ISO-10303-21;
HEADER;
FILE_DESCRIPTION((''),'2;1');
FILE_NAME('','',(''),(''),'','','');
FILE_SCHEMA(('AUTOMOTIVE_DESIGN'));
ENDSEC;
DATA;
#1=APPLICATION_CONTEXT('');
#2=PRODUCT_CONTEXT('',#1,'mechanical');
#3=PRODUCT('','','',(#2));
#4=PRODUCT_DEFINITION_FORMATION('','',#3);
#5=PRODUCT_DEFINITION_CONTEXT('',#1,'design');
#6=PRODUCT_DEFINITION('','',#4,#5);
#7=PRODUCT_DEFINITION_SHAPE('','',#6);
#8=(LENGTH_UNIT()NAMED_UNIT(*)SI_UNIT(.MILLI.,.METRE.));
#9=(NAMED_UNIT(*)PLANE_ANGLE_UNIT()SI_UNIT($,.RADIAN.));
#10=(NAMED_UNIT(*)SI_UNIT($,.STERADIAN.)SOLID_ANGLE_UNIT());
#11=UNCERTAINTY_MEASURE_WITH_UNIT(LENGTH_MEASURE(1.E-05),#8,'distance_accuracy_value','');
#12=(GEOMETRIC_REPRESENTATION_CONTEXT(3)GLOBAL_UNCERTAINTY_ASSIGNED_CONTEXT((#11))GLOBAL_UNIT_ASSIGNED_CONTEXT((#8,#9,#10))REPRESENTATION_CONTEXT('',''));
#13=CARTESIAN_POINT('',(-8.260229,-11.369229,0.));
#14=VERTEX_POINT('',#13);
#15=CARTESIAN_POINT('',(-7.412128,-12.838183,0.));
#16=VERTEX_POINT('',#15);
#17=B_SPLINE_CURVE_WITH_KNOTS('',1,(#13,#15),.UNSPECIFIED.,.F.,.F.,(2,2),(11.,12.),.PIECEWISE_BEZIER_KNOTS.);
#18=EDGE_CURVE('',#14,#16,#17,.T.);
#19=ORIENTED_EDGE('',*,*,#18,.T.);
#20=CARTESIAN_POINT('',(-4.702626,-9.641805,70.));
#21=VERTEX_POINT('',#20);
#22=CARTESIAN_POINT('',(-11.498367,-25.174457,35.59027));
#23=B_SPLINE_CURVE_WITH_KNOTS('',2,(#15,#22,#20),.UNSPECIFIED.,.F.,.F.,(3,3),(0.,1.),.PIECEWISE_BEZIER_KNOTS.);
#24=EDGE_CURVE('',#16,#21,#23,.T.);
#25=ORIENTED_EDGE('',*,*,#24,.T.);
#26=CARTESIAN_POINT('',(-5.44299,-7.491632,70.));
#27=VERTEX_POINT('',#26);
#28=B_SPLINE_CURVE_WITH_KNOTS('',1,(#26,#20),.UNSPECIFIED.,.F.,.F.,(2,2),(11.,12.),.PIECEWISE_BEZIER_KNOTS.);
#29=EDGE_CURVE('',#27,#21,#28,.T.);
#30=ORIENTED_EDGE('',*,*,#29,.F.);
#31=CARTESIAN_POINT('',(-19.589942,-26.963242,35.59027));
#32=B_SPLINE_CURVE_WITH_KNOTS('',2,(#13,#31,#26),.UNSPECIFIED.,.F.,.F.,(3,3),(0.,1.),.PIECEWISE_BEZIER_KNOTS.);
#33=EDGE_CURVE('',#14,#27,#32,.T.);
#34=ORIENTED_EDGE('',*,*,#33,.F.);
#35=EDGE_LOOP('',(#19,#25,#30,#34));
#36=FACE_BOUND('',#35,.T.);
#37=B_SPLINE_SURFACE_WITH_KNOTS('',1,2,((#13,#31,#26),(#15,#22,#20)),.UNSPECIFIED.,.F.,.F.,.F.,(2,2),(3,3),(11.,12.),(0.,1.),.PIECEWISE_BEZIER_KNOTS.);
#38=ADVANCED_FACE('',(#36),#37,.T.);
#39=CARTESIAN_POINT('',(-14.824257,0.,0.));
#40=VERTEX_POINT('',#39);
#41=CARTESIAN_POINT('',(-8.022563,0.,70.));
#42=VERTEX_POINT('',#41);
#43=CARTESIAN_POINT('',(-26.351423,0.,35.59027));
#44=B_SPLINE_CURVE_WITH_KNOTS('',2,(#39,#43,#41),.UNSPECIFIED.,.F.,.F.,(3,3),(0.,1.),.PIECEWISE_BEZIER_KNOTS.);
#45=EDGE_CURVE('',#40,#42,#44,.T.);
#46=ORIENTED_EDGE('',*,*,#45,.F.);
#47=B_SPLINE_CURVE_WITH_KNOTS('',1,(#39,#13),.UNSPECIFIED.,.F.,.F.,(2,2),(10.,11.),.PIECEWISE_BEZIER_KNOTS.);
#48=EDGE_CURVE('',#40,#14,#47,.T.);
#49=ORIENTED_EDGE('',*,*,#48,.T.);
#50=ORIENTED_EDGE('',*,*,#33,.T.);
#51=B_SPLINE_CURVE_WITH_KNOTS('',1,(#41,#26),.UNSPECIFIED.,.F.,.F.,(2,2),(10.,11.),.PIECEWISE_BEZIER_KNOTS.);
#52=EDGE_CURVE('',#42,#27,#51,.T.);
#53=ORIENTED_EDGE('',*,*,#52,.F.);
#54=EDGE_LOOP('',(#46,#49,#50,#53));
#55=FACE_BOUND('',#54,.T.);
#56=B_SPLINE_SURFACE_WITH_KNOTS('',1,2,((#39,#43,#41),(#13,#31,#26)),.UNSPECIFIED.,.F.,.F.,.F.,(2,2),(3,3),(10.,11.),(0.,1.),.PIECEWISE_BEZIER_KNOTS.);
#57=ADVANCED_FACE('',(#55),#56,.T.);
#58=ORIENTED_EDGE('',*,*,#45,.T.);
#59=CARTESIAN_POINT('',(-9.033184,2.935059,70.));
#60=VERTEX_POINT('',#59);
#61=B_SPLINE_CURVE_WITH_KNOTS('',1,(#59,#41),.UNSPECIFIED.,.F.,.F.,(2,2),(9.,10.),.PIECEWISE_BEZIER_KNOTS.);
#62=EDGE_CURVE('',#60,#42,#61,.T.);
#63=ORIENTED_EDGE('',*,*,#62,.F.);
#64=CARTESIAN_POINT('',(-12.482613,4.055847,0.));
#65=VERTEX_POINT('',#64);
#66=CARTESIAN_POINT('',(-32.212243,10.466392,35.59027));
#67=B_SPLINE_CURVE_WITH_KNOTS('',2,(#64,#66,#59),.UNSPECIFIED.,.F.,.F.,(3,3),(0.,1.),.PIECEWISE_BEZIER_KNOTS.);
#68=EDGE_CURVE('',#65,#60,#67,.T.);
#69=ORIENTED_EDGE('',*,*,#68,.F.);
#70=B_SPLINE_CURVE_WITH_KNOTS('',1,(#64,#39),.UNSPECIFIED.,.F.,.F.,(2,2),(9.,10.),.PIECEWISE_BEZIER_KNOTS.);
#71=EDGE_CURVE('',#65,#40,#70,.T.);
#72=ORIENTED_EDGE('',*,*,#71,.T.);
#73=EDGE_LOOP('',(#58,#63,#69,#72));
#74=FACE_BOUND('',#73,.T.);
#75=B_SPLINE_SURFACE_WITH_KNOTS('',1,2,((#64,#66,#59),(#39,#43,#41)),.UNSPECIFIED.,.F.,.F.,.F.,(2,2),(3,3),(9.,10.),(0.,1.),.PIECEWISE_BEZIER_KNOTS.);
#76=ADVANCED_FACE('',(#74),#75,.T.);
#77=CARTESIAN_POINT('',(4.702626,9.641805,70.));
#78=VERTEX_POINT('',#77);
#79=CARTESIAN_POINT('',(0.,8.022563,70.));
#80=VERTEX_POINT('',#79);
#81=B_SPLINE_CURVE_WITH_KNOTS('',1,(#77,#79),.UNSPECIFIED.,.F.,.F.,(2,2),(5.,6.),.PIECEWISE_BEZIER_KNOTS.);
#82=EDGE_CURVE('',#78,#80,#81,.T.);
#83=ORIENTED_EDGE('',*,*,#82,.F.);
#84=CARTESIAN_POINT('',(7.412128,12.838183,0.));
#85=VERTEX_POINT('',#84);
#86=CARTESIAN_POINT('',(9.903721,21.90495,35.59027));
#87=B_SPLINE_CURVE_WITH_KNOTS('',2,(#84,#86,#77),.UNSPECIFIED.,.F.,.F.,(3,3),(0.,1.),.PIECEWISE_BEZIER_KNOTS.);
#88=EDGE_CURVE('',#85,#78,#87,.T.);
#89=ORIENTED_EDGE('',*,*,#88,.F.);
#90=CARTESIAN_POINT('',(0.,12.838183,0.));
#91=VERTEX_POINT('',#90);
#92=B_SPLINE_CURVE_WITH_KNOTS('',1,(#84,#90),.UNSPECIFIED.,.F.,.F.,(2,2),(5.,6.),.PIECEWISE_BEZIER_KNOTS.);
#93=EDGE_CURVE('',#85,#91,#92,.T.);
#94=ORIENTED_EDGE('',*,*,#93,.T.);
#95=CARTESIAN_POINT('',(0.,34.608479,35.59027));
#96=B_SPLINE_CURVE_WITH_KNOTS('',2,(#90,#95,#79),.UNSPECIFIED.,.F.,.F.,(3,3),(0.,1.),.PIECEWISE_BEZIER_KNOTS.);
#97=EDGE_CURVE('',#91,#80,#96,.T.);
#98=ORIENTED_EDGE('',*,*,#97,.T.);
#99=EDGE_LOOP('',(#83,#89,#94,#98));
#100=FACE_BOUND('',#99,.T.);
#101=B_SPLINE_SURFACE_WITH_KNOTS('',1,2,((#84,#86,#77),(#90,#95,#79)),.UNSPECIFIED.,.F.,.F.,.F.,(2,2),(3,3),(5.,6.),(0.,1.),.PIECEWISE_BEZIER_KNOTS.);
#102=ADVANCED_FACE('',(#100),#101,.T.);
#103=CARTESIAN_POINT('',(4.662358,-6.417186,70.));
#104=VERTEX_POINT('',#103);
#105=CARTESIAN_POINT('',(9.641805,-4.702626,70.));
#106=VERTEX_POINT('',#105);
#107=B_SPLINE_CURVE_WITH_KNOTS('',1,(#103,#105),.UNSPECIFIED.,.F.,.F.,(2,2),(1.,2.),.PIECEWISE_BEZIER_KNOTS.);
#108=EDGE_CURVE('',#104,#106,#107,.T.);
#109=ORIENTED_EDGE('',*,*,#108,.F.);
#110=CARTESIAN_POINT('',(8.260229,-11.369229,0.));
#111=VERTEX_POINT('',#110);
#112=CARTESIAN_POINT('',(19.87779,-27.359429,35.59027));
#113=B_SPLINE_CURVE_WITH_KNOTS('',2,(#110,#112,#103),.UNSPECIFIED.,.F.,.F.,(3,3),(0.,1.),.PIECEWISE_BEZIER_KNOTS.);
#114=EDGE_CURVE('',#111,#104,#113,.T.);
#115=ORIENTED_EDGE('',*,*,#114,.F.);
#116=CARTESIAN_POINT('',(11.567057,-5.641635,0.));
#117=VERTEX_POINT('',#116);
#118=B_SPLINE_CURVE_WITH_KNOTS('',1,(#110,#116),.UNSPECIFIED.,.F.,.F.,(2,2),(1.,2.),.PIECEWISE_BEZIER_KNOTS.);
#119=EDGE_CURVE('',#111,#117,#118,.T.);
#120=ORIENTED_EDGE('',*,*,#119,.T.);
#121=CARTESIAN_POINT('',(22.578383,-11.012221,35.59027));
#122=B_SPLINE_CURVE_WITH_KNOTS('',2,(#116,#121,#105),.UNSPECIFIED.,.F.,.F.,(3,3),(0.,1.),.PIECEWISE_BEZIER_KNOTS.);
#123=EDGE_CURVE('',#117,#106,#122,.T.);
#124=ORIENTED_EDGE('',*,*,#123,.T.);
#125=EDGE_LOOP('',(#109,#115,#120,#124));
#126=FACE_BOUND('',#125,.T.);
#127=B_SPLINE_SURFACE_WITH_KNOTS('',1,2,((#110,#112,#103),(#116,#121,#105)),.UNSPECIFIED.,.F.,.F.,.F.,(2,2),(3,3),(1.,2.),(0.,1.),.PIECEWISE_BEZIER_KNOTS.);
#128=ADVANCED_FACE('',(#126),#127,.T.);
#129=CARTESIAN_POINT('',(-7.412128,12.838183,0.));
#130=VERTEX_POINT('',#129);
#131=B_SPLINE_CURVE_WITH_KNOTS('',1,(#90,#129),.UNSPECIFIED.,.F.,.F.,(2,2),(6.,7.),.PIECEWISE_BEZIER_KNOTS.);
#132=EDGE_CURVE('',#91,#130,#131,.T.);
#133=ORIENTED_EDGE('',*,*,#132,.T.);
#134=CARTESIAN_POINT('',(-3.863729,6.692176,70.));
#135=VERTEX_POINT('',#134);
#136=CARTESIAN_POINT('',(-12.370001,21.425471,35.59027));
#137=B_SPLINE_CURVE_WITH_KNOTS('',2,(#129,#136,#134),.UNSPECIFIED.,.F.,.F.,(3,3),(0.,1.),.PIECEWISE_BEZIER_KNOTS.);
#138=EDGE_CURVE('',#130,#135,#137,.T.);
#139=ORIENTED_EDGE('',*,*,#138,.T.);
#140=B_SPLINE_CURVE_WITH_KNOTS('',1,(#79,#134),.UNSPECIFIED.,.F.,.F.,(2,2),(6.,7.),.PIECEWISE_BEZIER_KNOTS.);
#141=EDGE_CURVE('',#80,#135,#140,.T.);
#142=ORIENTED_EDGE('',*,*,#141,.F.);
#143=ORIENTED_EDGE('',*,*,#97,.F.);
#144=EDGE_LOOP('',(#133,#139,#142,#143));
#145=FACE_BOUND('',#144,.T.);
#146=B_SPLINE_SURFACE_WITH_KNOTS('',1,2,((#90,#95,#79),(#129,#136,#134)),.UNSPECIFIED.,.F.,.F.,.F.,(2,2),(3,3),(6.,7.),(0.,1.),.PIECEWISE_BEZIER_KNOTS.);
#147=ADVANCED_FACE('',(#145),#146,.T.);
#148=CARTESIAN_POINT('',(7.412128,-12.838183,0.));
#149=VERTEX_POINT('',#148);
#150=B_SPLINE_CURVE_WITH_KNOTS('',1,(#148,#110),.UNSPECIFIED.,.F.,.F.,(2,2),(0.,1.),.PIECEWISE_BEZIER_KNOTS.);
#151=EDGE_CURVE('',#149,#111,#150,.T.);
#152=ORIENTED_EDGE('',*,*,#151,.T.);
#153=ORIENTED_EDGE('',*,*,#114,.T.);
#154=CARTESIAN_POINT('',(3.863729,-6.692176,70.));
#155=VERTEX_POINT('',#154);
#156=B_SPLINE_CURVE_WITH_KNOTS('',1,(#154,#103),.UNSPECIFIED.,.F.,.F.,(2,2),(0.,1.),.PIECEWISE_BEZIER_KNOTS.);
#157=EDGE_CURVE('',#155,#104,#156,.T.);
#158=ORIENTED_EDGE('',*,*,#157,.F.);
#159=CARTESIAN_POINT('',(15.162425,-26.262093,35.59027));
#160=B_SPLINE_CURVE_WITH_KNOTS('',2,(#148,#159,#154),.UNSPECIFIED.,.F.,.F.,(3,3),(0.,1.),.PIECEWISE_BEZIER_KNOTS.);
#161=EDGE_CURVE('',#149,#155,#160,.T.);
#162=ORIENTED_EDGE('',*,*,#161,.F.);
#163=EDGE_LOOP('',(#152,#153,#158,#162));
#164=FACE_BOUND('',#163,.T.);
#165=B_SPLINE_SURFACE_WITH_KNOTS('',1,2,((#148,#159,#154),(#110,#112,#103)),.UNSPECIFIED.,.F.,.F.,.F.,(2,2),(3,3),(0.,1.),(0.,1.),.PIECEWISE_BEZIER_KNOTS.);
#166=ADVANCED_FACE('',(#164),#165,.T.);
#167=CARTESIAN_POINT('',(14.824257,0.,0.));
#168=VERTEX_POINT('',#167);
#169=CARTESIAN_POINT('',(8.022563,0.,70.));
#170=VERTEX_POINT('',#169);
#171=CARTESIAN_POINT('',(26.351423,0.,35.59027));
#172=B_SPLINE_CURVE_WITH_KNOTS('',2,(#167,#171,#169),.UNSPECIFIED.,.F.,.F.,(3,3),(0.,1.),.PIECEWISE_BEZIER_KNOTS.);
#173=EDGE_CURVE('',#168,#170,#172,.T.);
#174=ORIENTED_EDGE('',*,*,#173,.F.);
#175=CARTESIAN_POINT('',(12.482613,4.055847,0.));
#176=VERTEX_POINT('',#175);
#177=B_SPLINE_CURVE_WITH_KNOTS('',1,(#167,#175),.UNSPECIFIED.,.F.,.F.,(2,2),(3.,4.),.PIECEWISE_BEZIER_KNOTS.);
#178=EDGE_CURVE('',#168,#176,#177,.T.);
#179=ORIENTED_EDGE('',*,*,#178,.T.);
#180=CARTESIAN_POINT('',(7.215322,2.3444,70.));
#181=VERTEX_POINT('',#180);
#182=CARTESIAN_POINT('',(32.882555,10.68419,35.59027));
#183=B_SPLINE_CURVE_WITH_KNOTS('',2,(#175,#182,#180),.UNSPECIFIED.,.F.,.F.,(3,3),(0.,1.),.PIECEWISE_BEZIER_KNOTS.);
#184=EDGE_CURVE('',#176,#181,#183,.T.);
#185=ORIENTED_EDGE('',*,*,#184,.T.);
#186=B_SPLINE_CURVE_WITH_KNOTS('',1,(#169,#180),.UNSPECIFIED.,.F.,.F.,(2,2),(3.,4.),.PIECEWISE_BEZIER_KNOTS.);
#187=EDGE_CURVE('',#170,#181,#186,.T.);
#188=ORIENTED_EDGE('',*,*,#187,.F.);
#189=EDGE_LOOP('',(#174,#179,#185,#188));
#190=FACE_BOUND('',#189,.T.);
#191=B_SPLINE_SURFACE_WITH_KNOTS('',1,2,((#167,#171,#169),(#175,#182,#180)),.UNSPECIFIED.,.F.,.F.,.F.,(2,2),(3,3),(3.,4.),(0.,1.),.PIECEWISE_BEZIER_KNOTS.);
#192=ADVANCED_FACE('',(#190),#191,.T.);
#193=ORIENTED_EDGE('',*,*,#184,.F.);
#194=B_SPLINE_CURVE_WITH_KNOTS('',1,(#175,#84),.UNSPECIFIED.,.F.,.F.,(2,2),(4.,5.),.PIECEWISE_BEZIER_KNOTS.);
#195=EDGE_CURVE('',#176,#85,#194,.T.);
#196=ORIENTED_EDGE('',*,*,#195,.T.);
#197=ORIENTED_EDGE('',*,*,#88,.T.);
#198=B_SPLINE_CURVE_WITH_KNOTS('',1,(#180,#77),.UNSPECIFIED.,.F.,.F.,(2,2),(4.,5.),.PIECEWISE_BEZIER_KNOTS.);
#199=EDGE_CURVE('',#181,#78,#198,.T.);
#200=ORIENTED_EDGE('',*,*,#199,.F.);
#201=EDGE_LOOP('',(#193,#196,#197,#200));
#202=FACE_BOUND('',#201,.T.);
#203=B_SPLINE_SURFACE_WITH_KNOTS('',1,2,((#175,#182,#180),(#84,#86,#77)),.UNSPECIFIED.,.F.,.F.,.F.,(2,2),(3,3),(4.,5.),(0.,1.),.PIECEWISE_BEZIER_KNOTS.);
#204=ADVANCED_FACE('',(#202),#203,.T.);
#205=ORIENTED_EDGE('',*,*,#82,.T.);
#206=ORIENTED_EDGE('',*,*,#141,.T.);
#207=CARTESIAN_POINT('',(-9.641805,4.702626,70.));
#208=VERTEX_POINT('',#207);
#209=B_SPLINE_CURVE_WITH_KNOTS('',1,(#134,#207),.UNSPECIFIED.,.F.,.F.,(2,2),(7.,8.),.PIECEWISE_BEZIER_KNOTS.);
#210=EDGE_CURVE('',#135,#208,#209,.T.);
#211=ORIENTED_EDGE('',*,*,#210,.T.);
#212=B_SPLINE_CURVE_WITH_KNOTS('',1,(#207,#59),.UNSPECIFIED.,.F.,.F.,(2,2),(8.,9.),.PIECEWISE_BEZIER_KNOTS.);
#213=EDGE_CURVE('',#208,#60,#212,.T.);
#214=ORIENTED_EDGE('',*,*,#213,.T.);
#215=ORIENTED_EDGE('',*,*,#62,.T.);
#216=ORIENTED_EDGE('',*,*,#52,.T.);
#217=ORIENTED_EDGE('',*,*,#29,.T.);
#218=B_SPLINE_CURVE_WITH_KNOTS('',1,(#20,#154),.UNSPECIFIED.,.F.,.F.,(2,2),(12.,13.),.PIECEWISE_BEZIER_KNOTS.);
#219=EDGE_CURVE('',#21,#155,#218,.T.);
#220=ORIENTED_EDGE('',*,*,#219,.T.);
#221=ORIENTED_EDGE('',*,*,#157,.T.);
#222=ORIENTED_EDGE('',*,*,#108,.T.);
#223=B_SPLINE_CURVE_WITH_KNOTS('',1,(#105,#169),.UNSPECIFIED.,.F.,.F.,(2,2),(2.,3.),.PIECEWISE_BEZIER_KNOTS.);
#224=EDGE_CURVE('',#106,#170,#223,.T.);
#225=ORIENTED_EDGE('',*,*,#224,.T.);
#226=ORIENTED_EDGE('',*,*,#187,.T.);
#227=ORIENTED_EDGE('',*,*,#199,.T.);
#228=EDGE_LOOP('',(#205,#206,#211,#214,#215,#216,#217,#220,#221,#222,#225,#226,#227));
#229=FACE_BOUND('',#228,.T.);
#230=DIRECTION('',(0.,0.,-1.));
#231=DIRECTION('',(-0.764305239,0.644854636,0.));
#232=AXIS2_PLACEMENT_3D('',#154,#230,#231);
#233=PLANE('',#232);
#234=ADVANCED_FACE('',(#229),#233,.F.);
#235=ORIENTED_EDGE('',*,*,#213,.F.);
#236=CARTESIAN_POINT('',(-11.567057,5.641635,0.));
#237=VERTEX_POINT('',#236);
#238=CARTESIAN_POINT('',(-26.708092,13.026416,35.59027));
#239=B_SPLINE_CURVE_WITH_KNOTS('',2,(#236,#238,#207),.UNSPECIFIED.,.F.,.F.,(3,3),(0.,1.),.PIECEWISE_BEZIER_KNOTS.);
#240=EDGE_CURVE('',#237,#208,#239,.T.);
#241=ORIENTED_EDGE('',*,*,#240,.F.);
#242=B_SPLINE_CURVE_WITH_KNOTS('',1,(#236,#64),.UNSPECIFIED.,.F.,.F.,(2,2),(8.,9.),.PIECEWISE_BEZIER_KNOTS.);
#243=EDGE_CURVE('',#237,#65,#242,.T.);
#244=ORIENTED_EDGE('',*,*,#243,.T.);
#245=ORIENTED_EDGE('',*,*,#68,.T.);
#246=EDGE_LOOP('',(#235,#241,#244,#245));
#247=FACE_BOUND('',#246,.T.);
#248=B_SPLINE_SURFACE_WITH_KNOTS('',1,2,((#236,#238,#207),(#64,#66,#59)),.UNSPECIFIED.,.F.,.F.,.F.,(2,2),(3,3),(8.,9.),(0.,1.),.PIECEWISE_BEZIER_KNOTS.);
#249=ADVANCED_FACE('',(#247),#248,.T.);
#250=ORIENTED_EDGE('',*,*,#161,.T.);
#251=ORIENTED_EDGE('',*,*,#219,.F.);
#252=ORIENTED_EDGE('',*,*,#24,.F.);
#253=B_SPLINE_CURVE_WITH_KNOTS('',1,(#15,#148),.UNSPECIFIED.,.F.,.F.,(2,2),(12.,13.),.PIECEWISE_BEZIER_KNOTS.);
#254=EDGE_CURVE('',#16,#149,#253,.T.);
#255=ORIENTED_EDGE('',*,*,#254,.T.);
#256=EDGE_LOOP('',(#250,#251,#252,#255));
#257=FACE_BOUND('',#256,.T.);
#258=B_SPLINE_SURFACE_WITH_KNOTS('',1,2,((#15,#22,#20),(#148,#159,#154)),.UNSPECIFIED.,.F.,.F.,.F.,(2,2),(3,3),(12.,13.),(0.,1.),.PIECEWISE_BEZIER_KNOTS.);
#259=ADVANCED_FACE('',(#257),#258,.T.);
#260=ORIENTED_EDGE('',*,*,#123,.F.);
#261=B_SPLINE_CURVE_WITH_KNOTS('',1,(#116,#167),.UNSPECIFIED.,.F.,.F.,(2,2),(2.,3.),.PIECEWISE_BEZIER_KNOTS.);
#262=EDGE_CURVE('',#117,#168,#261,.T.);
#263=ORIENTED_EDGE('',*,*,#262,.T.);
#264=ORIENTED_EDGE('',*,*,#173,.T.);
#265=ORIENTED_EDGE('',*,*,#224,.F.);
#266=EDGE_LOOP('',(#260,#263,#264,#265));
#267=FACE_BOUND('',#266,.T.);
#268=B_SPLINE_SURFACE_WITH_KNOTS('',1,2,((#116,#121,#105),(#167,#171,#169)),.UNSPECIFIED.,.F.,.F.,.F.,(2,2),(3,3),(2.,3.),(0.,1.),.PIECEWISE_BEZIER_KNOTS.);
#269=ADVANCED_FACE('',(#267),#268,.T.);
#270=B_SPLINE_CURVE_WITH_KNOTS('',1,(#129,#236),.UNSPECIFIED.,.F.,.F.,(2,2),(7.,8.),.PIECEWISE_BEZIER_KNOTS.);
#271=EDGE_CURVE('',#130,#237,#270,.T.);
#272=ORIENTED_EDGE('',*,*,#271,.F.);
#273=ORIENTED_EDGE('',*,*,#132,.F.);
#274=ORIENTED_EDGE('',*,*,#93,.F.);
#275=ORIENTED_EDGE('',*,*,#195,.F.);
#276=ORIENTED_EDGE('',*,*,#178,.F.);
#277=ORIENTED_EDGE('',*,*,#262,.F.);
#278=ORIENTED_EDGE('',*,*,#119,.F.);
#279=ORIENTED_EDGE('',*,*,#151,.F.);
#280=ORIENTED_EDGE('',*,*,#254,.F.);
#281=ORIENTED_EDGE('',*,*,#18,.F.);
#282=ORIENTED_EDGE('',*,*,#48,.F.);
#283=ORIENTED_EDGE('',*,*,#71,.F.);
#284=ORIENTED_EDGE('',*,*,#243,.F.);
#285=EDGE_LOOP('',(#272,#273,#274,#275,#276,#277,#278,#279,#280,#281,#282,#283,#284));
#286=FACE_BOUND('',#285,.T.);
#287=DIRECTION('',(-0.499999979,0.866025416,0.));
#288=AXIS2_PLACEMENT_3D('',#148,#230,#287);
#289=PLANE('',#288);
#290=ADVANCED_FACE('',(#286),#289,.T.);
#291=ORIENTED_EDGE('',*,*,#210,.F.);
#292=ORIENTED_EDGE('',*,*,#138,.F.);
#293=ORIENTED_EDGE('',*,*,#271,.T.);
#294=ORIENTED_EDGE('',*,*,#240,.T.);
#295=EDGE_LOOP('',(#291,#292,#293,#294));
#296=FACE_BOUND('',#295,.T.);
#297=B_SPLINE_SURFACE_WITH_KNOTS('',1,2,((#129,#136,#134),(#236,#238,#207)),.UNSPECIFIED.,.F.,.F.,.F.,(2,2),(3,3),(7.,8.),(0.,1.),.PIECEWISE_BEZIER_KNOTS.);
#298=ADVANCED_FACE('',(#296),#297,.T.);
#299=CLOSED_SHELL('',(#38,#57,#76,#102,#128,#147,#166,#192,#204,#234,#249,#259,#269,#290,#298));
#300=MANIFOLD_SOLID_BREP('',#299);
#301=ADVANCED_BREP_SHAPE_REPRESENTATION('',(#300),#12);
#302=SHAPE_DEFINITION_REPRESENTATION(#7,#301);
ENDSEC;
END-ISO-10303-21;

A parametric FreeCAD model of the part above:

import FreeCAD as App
import Part
import Sketcher

V = App.Vector
Q = App.Units.Quantity

doc = App.newDocument("Part")
body = doc.addObject("PartDesign::Body", "Body")

# Sketch on XY plane
sketch1 = body.newObject("Sketcher::SketchObject", "Sketch")
sketch1.AttachmentSupport = (doc.getObject("XY_Plane"), [""])
sketch1.MapMode = "FlatFace"
sketch1.addGeometry([
    Part.LineSegment(V(7.412128, -12.838183, 0), V(14.824257, 0, 0)),  # 0
    Part.LineSegment(V(14.824257, 0, 0), V(7.412128, 12.838183, 0)),  # 1
    Part.LineSegment(V(7.412128, 12.838183, 0), V(-7.412128, 12.838183, 0)),  # 2
    Part.LineSegment(V(-7.412128, 12.838183, 0), V(-14.824257, 0, 0)),  # 3
    Part.LineSegment(V(-14.824257, 0, 0), V(-7.412128, -12.838183, 0)),  # 4
    Part.LineSegment(V(-7.412128, -12.838183, 0), V(7.412128, -12.838183, 0)),  # 5
], False)
sketch1.addConstraint([
    Sketcher.Constraint("Coincident", 0, 2, 1, 1),
    Sketcher.Constraint("Coincident", 1, 2, 2, 1),
    Sketcher.Constraint("Coincident", 2, 2, 3, 1),
    Sketcher.Constraint("Coincident", 3, 2, 4, 1),
    Sketcher.Constraint("Coincident", 4, 2, 5, 1),
    Sketcher.Constraint("Coincident", 5, 2, 0, 1),
    Sketcher.Constraint("Horizontal", 2),
    Sketcher.Constraint("Horizontal", 5),
    Sketcher.Constraint("Symmetric", 0, 2, 3, 2, -1, 1),
    Sketcher.Constraint("Symmetric", 1, 2, 4, 2, -1, 1),
    Sketcher.Constraint("PointOnObject", 0, 2, -1),
    Sketcher.Constraint("Parallel", 0, 3),
    Sketcher.Constraint("Vertical", 2, 2, 4, 2),
    Sketcher.Constraint("Angle", 0, Q("59.999998 deg")),
    Sketcher.Constraint("DistanceX", 2, 2, 2, 1, Q("14.824256 mm")),
    Sketcher.Constraint("DistanceX", 1, 2, 0, 2, Q("7.412129 mm")),
])

# Sketch on XY plane
sketch2 = body.newObject("Sketcher::SketchObject", "Sketch001")
sketch2.AttachmentSupport = (doc.getObject("XY_Plane"), [""])
sketch2.MapMode = "FlatFace"
sketch2.AttachmentOffset = App.Placement(V(0, 0, 30), App.Rotation())
sketch2.addGeometry([
    Part.LineSegment(V(13.288204, -18.289643, 0), V(21.500765, 6.986022, 0)),  # 0
    Part.LineSegment(V(21.500765, 6.986022, 0), V(0, 22.607242, 0)),  # 1
    Part.LineSegment(V(0, 22.607242, 0), V(-21.500765, 6.986022, 0)),  # 2
    Part.LineSegment(V(-21.500765, 6.986022, 0), V(-13.288204, -18.289643, 0)),  # 3
    Part.LineSegment(V(-13.288204, -18.289643, 0), V(13.288204, -18.289643, 0)),  # 4
], False)
sketch2.addConstraint([
    Sketcher.Constraint("Coincident", 0, 2, 1, 1),
    Sketcher.Constraint("Coincident", 1, 2, 2, 1),
    Sketcher.Constraint("Coincident", 2, 2, 3, 1),
    Sketcher.Constraint("Coincident", 3, 2, 4, 1),
    Sketcher.Constraint("Coincident", 4, 2, 0, 1),
    Sketcher.Constraint("Horizontal", 4),
    Sketcher.Constraint("Symmetric", 0, 2, 2, 2, -2),
    Sketcher.Constraint("PointOnObject", 1, 2, -2),
    Sketcher.Constraint("Equal", 0, 1),
    Sketcher.Constraint("Equal", 2, 3),
    Sketcher.Constraint("Angle", 0, Q("72.000001 deg")),
    Sketcher.Constraint("Angle", 1, Q("144 deg")),
    Sketcher.Constraint("DistanceX", 4, 1, 4, 2, Q("26.576408 mm")),
    Sketcher.Constraint("DistanceY", -1, 1, 1, 2, Q("22.607242 mm")),
])

# Sketch on XY plane
sketch3 = body.newObject("Sketcher::SketchObject", "Sketch002")
sketch3.AttachmentSupport = (doc.getObject("XY_Plane"), [""])
sketch3.MapMode = "FlatFace"
sketch3.AttachmentOffset = App.Placement(V(0, 0, 70), App.Rotation())
sketch3.addGeometry([
    Part.LineSegment(V(-9.641805, 4.702626, 0), V(-4.702626, -9.641805, 0)),
    Part.LineSegment(V(-4.702626, -9.641805, 0), V(9.641805, -4.702626, 0)),
    Part.LineSegment(V(9.641805, -4.702626, 0), V(4.702626, 9.641805, 0)),
    Part.LineSegment(V(4.702626, 9.641805, 0), V(-9.641805, 4.702626, 0)),
], False)
sketch3.addConstraint([
    Sketcher.Constraint("Coincident", 0, 2, 1, 1),
    Sketcher.Constraint("Coincident", 1, 2, 2, 1),
    Sketcher.Constraint("Coincident", 2, 2, 3, 1),
    Sketcher.Constraint("Coincident", 3, 2, 0, 1),
    Sketcher.Constraint("Symmetric", 0, 2, 2, 2, -1, 1),
    Sketcher.Constraint("Symmetric", 1, 2, 3, 2, -1, 1),
    Sketcher.Constraint("Perpendicular", 0, 1),
    Sketcher.Constraint("Equal", 0, 1),
    Sketcher.Constraint("Angle", 0, Q("-71.000016 deg")),
    Sketcher.Constraint("DistanceX", 0, 2, 1, 2, Q("14.344432 mm")),
])

additiveloft = body.newObject("PartDesign::AdditiveLoft", "AdditiveLoft")
additiveloft.Profile = sketch1
additiveloft.Sections = [sketch2, sketch3]

doc.recompute()
